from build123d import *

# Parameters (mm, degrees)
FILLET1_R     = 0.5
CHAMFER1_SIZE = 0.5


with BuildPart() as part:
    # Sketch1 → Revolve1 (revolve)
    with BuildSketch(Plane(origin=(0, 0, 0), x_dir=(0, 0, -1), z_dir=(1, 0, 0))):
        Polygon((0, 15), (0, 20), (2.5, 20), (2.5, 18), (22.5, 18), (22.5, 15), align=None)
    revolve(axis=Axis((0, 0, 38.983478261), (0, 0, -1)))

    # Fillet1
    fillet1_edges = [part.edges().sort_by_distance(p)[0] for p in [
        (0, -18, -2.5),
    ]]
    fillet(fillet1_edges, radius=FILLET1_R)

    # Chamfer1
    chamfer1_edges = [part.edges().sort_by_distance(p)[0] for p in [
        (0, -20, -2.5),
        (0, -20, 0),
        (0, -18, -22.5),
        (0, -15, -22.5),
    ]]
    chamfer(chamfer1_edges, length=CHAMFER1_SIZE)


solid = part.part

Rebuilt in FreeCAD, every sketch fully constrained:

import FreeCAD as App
import Part
import Sketcher

V = App.Vector


def edges_at(feature, points):
    """Names of the edges that pass closest to the given points."""
    edges = feature.Shape.Edges
    near = lambda p: min(range(len(edges)), key=lambda i: edges[i].distToShape(Part.Vertex(*p))[0])
    return sorted({f"Edge{near(p) + 1}" for p in points})

doc = App.newDocument("Part")
params = doc.addObject("Spreadsheet::Sheet", "Params")
for row, (alias, value) in enumerate([
    ("sketch1_width", "5 mm"),
    ("sketch1_width2", "3 mm"),
    ("sketch1_height", "20 mm"),
    ("sketch1_height2", "22.5 mm"),
    ("revolution_angle", "360 deg"),
    ("fillet_radius", "0.5 mm"),
    ("chamfer_size", "0.5 mm"),
], start=1):
    params.set(f"A{row}", alias)
    params.set(f"B{row}", "=" + value)
    params.setAlias(f"B{row}", alias)

body = doc.addObject("PartDesign::Body", "Body")

# Sketch on YZ plane
sketch1 = body.newObject("Sketcher::SketchObject", "Sketch")
sketch1.AttachmentSupport = (doc.getObject("YZ_Plane"), [""])
sketch1.MapMode = "FlatFace"
sketch1.addGeometry(Part.LineSegment(V(20, 0, 0), V(15, 0, 0)), False)
sketch1.addGeometry(Part.LineSegment(V(15, 0, 0), V(15, -22.5, 0)), False)
sketch1.addGeometry(Part.LineSegment(V(15, -22.5, 0), V(18, -22.5, 0)), False)
sketch1.addGeometry(Part.LineSegment(V(18, -22.5, 0), V(18, -2.5, 0)), False)
sketch1.addGeometry(Part.LineSegment(V(18, -2.5, 0), V(20, -2.5, 0)), False)
sketch1.addGeometry(Part.LineSegment(V(20, -2.5, 0), V(20, 0, 0)), False)
sketch1.addConstraint(Sketcher.Constraint("Coincident", 0, 2, 1, 1))
sketch1.addConstraint(Sketcher.Constraint("Coincident", 1, 2, 2, 1))
sketch1.addConstraint(Sketcher.Constraint("Coincident", 2, 2, 3, 1))
sketch1.addConstraint(Sketcher.Constraint("Coincident", 3, 2, 4, 1))
sketch1.addConstraint(Sketcher.Constraint("Coincident", 4, 2, 5, 1))
sketch1.addConstraint(Sketcher.Constraint("Coincident", 5, 2, 0, 1))
sketch1.addConstraint(Sketcher.Constraint("Horizontal", 0))
sketch1.addConstraint(Sketcher.Constraint("Vertical", 1))
sketch1.addConstraint(Sketcher.Constraint("Horizontal", 2))
sketch1.addConstraint(Sketcher.Constraint("Vertical", 3))
sketch1.addConstraint(Sketcher.Constraint("Horizontal", 4))
sketch1.addConstraint(Sketcher.Constraint("Vertical", 5))
sketch1.addConstraint(Sketcher.Constraint("PointOnObject", 0, 2, -1))
sketch1.addConstraint(Sketcher.Constraint("DistanceX", 0, 2, 0, 1, 5.0))
sketch1.addConstraint(Sketcher.Constraint("DistanceX", 2, 1, 2, 2, 3.0))
sketch1.addConstraint(Sketcher.Constraint("DistanceY", 3, 1, 3, 2, 20.0))
sketch1.addConstraint(Sketcher.Constraint("DistanceY", 1, 2, 1, 1, 22.5))
sketch1.addConstraint(Sketcher.Constraint("DistanceX", -1, 1, 0, 2, 15.0))
sketch1.setExpression("Constraints[13]", "Params.sketch1_width")
sketch1.setExpression("Constraints[14]", "Params.sketch1_width2")
sketch1.setExpression("Constraints[15]", "Params.sketch1_height")
sketch1.setExpression("Constraints[16]", "Params.sketch1_height2")
revolution = body.newObject("PartDesign::Revolution", "Revolution")
revolution.Profile = sketch1
revolution.ReferenceAxis = (sketch1, ["V_Axis"])
revolution.setExpression("Angle", "Params.revolution_angle")
doc.recompute()

fillet = body.newObject("PartDesign::Fillet", "Fillet")
fillet.Base = (revolution, edges_at(revolution, [(0, -18, -2.5)]))
fillet.setExpression("Radius", "Params.fillet_radius")
doc.recompute()

chamfer = body.newObject("PartDesign::Chamfer", "Chamfer")
chamfer.Base = (fillet, edges_at(fillet, [
    (0, -20, -2.5),
    (0, -20, 0),
    (0, -18, -22.5),
    (0, -15, -22.5),
]))
chamfer.setExpression("Size", "Params.chamfer_size")

doc.recompute()
